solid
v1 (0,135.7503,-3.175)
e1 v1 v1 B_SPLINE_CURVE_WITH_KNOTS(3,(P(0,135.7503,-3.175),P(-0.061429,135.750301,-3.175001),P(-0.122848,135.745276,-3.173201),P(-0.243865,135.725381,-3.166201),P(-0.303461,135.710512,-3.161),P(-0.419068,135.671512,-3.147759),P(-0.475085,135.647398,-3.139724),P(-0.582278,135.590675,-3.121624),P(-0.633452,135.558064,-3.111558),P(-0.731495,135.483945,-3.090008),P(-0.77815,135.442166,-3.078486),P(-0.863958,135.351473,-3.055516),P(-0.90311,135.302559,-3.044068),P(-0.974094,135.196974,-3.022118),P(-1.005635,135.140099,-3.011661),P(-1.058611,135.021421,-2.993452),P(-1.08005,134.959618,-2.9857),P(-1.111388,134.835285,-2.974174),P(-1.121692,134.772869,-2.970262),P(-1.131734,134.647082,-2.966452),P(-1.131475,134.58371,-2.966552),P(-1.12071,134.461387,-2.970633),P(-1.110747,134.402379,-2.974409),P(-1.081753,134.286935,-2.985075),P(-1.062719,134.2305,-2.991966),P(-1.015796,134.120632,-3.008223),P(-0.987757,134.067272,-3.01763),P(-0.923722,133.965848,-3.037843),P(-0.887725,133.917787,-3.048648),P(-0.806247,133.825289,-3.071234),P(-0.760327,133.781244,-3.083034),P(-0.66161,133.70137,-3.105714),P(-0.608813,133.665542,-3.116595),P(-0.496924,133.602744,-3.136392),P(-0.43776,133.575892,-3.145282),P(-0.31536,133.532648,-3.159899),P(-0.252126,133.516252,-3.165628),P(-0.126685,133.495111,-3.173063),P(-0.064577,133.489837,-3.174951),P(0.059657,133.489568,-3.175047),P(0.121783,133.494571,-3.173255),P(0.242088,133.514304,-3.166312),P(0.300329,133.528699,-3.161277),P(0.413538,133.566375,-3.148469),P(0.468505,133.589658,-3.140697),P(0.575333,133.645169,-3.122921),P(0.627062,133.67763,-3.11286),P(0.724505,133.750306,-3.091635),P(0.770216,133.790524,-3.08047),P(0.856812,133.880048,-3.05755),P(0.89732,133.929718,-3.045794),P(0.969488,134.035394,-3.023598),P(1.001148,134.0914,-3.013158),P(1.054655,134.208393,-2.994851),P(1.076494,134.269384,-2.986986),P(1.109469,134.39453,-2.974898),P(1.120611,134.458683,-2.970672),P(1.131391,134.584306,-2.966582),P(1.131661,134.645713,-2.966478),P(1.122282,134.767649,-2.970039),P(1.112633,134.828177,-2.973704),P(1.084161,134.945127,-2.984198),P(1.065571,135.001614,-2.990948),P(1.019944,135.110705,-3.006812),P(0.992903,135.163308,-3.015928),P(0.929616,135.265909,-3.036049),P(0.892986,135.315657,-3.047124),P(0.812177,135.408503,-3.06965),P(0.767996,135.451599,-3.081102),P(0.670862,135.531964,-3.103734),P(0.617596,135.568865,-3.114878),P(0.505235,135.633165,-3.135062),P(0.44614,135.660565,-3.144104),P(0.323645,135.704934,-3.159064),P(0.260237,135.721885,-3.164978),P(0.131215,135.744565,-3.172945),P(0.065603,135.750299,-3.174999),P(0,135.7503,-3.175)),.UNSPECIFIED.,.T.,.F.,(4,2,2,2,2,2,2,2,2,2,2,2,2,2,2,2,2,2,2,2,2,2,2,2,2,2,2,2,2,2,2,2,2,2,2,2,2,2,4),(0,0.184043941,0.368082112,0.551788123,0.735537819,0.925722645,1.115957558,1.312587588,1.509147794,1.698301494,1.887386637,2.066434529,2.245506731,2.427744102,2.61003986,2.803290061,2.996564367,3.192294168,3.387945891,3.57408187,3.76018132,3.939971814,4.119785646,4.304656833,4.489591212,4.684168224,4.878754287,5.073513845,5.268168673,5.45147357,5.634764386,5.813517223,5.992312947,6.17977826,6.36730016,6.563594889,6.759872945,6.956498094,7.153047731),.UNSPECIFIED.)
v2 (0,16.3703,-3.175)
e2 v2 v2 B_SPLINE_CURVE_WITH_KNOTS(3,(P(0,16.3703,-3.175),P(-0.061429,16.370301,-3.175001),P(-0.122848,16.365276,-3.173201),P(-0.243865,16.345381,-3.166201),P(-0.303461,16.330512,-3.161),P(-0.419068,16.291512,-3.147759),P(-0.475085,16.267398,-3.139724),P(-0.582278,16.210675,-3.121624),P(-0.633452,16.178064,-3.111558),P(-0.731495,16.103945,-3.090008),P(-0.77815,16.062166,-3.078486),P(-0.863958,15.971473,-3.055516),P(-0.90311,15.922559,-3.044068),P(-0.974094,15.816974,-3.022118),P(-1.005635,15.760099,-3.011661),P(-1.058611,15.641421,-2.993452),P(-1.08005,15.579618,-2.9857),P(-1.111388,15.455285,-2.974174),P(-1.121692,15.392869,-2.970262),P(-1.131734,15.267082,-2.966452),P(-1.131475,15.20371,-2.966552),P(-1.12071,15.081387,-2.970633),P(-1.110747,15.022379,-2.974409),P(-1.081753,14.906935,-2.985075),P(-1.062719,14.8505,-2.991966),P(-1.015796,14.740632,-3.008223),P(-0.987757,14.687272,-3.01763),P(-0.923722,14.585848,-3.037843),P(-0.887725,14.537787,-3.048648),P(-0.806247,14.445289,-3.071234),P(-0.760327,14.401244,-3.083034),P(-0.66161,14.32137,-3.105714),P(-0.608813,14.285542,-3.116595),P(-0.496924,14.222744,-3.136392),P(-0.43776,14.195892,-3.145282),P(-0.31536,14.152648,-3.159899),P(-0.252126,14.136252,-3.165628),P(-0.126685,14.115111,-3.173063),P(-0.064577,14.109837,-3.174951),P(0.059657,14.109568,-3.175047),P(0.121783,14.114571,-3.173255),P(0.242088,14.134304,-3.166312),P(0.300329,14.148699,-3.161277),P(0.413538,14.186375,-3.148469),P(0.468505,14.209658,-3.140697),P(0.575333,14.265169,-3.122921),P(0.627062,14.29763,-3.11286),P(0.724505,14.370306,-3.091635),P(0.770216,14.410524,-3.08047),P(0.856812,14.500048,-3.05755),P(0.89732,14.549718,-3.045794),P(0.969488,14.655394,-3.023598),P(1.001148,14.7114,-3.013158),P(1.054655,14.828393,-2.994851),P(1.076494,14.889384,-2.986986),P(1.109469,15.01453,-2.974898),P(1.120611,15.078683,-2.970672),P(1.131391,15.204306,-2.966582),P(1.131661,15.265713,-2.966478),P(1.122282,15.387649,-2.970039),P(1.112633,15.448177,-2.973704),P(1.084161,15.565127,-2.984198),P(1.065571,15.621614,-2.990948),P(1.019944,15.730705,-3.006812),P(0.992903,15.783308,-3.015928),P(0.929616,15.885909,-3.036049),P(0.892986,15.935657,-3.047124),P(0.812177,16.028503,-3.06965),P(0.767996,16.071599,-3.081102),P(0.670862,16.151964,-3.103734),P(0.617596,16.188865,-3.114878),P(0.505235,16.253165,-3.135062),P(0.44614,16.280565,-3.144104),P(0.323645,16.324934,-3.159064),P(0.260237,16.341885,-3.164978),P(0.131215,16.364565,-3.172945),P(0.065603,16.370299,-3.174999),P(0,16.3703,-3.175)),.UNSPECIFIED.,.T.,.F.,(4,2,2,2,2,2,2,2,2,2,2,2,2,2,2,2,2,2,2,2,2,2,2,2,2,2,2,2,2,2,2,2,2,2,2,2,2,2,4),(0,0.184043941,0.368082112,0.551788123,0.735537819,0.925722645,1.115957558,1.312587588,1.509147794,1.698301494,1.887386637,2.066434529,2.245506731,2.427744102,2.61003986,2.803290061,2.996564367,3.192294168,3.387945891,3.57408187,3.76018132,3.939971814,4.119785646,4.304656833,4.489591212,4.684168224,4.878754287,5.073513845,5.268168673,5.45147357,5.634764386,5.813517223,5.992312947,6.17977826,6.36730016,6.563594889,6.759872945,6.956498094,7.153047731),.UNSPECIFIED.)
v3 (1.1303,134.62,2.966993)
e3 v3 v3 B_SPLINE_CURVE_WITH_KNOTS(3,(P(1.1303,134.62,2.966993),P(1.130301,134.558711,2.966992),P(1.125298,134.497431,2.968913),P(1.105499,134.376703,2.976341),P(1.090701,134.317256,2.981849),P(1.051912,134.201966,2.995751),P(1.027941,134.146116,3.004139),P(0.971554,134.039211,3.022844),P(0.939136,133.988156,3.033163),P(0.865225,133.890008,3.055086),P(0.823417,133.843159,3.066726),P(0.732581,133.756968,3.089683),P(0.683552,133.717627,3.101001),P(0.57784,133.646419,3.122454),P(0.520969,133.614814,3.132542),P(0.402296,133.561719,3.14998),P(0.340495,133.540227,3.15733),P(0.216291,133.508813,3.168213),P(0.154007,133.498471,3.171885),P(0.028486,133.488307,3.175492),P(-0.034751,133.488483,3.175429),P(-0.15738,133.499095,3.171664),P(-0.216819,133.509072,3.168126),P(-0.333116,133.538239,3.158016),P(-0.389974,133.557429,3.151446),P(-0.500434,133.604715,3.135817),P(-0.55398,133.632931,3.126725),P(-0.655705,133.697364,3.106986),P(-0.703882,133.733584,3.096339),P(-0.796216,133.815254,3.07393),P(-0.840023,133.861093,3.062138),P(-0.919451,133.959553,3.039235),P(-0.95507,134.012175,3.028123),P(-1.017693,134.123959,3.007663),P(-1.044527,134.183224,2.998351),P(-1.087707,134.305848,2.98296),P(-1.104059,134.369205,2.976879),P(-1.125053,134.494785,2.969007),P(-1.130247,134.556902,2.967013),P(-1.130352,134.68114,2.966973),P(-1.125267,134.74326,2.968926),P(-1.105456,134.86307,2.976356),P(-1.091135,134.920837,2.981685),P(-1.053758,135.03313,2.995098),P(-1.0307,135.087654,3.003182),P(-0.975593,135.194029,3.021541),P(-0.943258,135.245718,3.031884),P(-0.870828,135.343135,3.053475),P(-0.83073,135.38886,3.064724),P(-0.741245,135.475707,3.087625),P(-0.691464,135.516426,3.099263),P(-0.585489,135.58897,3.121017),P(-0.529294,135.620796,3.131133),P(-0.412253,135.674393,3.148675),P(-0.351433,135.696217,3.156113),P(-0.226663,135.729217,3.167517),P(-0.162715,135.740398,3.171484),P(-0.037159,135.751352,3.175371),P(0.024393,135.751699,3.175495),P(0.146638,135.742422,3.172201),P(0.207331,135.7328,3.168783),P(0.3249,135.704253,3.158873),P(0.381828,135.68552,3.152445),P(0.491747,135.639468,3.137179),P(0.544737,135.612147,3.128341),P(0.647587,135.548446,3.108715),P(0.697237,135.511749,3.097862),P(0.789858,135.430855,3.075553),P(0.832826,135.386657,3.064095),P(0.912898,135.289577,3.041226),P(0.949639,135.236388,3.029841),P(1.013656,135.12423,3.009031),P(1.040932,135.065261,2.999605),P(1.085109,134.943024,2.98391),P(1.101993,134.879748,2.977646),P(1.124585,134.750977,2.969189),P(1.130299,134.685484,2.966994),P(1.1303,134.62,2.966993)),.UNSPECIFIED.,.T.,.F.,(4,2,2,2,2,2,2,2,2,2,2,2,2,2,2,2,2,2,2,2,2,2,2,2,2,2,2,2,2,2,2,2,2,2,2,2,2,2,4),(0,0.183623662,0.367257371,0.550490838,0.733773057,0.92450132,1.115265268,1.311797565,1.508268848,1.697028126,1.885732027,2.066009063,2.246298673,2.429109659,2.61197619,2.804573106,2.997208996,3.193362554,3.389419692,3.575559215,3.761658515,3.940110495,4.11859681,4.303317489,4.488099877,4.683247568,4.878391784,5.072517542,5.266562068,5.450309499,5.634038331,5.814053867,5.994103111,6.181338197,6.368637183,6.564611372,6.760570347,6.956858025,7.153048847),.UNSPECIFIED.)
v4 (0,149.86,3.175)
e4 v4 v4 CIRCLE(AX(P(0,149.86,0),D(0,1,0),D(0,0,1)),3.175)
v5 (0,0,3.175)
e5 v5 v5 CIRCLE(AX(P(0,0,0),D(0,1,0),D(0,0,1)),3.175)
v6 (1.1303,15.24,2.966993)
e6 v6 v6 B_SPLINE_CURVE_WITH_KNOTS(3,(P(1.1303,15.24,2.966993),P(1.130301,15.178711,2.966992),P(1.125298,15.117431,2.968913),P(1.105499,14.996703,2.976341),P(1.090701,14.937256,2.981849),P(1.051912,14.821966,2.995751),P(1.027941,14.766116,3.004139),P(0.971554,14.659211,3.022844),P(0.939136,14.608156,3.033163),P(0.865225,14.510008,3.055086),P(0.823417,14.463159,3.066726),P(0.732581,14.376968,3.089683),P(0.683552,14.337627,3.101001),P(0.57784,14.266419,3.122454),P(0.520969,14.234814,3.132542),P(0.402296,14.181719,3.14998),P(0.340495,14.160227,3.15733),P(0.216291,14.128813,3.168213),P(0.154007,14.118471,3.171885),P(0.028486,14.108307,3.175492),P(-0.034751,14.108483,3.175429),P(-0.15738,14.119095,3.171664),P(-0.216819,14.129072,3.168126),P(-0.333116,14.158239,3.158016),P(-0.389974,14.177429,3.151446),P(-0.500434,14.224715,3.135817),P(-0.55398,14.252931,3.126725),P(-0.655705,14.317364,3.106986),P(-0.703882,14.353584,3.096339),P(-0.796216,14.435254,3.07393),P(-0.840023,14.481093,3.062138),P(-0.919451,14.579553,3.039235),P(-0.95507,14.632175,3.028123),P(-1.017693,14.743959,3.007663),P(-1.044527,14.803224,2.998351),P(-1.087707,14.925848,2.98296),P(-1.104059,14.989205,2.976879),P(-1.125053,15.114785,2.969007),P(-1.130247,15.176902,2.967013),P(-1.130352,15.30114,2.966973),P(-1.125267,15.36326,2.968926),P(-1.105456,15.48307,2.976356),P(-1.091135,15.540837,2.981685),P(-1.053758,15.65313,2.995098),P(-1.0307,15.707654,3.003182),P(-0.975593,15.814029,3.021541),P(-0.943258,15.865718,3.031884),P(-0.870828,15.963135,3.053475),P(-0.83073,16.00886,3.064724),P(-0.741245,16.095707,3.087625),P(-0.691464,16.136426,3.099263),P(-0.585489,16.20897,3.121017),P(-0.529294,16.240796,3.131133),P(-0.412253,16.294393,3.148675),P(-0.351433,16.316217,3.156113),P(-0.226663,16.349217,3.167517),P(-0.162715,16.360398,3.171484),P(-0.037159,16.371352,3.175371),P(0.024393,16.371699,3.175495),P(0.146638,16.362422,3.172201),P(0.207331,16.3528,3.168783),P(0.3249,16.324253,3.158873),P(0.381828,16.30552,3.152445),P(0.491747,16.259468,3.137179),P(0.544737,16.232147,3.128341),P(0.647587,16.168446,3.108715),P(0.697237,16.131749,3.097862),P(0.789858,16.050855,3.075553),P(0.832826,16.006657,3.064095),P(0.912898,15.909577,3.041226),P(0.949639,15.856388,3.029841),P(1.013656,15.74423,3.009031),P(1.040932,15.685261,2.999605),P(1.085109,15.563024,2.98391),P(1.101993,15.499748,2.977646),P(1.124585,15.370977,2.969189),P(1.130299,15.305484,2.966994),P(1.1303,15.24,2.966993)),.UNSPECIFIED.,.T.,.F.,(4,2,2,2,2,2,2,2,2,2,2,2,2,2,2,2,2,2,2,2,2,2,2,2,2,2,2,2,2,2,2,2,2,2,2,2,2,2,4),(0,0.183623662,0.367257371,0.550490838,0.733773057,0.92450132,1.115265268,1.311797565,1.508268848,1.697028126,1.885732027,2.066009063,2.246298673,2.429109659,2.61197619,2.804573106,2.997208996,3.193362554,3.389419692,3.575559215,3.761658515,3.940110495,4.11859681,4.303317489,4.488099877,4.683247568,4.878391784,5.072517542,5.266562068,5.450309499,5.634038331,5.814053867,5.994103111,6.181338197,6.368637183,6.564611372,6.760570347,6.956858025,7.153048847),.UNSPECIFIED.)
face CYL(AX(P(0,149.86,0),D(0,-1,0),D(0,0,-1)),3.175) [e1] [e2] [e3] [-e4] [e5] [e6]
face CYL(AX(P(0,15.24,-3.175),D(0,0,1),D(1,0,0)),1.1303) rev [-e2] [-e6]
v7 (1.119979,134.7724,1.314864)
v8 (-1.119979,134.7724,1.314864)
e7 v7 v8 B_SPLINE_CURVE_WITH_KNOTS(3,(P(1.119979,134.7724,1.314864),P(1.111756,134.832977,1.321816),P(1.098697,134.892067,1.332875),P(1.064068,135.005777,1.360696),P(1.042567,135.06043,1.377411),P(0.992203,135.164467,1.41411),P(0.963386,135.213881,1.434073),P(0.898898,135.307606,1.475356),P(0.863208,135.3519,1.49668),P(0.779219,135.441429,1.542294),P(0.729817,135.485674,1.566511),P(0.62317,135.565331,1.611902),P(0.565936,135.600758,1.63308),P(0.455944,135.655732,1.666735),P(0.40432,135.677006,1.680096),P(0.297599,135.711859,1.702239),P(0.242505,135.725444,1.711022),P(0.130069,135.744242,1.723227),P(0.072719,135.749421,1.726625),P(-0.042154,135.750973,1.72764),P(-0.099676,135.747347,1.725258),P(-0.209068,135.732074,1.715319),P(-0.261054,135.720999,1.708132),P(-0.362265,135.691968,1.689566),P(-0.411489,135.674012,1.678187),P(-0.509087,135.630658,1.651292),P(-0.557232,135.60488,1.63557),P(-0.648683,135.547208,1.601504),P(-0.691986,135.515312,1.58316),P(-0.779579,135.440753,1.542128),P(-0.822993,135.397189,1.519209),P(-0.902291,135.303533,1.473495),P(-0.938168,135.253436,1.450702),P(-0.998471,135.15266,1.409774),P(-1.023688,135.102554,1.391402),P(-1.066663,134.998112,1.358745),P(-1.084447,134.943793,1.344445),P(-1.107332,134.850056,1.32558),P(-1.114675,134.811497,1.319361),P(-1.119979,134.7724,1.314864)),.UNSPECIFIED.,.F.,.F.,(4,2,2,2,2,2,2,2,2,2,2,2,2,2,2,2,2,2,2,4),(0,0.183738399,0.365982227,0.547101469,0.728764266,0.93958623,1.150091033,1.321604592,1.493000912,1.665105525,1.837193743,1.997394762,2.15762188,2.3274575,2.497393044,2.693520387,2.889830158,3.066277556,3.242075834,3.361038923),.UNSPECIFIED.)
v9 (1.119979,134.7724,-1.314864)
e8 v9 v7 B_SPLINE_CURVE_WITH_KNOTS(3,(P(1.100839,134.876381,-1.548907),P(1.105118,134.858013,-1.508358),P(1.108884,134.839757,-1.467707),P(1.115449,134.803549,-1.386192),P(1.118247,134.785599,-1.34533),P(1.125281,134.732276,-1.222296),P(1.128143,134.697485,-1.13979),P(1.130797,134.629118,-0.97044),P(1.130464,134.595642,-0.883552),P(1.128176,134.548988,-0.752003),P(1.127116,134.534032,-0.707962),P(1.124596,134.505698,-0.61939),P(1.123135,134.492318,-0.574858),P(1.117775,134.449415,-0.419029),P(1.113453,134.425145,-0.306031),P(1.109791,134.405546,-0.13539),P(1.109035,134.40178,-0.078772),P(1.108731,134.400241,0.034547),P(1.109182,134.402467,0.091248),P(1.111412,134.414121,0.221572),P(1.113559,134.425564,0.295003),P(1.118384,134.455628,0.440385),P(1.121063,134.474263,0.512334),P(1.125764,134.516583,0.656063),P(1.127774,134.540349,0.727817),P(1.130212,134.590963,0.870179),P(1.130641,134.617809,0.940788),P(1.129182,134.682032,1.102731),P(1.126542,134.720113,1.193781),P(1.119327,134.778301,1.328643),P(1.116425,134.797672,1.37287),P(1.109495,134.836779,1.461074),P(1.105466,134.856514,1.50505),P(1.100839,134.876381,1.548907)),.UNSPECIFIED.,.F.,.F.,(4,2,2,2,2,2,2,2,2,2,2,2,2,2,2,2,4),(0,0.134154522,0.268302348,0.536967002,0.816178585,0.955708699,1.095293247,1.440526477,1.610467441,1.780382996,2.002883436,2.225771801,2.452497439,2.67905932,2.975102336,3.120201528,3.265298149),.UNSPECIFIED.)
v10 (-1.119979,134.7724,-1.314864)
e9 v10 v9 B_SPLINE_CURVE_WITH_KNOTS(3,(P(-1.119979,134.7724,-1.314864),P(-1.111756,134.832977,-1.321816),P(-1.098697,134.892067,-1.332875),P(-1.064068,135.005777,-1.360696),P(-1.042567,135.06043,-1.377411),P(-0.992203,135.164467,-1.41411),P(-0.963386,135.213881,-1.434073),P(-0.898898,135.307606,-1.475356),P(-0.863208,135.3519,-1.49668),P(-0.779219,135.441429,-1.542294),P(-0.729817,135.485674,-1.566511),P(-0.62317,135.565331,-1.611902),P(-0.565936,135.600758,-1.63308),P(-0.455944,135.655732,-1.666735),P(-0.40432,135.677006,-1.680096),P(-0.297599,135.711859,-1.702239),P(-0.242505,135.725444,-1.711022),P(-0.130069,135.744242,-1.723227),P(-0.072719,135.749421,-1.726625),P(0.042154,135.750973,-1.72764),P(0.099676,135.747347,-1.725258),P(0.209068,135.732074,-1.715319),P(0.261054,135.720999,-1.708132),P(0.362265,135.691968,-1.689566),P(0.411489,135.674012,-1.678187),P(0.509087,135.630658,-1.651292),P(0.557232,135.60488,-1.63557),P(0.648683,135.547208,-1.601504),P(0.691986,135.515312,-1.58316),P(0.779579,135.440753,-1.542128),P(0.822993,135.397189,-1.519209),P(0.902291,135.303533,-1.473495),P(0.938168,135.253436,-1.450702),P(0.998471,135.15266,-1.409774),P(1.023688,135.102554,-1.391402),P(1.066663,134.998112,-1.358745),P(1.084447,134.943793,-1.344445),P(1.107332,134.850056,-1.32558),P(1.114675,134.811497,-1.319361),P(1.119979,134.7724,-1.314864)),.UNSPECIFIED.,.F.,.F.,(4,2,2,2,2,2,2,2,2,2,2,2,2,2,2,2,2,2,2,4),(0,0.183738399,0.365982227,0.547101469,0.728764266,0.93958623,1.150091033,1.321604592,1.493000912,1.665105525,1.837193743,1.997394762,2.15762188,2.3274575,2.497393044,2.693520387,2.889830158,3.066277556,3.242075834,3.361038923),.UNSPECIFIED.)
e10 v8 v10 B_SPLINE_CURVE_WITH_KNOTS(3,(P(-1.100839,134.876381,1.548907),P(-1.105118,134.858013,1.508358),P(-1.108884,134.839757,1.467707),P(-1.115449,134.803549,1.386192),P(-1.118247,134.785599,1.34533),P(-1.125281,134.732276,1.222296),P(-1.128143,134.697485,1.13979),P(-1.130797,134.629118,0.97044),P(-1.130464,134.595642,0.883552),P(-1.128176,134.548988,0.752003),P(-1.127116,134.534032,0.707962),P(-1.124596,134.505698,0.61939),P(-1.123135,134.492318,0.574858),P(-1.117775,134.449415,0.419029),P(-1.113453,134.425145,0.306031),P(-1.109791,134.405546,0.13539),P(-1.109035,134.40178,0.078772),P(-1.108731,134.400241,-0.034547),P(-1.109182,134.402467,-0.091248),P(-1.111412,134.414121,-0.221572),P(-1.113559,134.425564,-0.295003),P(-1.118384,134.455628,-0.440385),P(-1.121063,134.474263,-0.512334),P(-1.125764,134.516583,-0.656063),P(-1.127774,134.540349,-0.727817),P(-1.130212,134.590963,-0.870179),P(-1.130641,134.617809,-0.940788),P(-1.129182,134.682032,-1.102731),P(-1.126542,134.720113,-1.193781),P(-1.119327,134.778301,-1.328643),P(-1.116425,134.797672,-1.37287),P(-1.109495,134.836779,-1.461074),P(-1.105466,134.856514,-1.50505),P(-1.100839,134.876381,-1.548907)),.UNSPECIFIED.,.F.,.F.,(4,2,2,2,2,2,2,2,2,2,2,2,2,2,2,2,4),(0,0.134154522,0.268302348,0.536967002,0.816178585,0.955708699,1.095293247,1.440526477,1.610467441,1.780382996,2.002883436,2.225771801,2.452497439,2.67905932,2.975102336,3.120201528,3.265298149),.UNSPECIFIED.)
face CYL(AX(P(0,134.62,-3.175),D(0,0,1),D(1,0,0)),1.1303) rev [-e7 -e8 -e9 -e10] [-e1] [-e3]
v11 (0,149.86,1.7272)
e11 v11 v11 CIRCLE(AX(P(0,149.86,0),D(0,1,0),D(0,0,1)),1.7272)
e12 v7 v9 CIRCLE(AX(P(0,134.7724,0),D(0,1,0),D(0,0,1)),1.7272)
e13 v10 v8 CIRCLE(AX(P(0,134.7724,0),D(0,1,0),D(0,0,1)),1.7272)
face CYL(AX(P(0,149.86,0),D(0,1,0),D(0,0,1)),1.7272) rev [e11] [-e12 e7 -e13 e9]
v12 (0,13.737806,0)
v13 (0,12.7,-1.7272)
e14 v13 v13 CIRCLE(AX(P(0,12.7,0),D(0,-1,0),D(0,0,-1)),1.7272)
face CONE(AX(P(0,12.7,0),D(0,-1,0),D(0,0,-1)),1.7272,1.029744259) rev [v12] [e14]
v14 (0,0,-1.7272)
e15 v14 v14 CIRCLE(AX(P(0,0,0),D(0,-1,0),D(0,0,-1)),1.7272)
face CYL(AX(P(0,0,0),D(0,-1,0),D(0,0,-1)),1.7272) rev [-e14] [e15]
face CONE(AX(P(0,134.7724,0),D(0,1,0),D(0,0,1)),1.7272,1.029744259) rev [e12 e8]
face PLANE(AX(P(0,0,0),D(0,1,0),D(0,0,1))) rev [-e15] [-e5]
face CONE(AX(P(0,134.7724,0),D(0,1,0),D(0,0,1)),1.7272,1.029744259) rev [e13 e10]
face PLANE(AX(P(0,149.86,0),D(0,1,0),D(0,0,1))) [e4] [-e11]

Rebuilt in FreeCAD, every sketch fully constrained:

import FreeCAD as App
import Part
import Sketcher
from FreeCAD import Vector
Q = App.Units.Quantity

doc = App.newDocument("Part")
body = doc.addObject("PartDesign::Body", "Body")

# Sketch on XZ plane
sketch1 = body.newObject("Sketcher::SketchObject", "Sketch")
sketch1.AttachmentSupport = (doc.getObject("XZ_Plane"), [""])
sketch1.MapMode = "FlatFace"
sketch1.addGeometry(Part.Circle(Vector(0, 0, 0), Vector(0, 0, 1), 3.175), False)
sketch1.addConstraint(Sketcher.Constraint("Coincident", 0, 3, -1, 1))
sketch1.addConstraint(Sketcher.Constraint("Diameter", 0, Q("0.25 in")))
pad1 = body.newObject("PartDesign::Pad", "Pad")
pad1.Profile = sketch1
pad1.Length = Q("5.9 in")
pad1.Reversed = True

# Sketch on XZ plane
sketch2 = body.newObject("Sketcher::SketchObject", "Sketch001")
sketch2.AttachmentSupport = (doc.getObject("XZ_Plane"), [""])
sketch2.MapMode = "FlatFace"
sketch2.addGeometry(Part.Circle(Vector(0, 0, 0), Vector(0, 0, 1), 1.7272), False)
sketch2.addConstraint(Sketcher.Constraint("Coincident", 0, 3, -1, 1))
sketch2.addConstraint(Sketcher.Constraint("Diameter", 0, Q("0.136 in")))
doc.recompute()
hole = body.newObject("PartDesign::Hole", "Hole")
hole.Profile = sketch2
hole.ThreadType = "None"
hole.Diameter = Q("0.136 in")
hole.DepthType = "Dimension"
hole.Depth = Q("0.5 in")
hole.DrillPoint = "Angled"
hole.DrillPointAngle = 118

# Sketch on XZ plane
sketch3 = body.newObject("Sketcher::SketchObject", "Sketch002")
sketch3.AttachmentSupport = (doc.getObject("XZ_Plane"), [""])
sketch3.MapMode = "FlatFace"
sketch3.AttachmentOffset = App.Placement(Vector(0, 0, -5.9 * 25.4), App.Rotation())
sketch3.addGeometry(Part.Circle(Vector(0, 0, 0), Vector(0, 0, 1), 1.7272), False)
sketch3.addConstraint(Sketcher.Constraint("Coincident", 0, 3, -1, 1))
sketch3.addConstraint(Sketcher.Constraint("Diameter", 0, Q("0.136 in")))
doc.recompute()
hole2 = body.newObject("PartDesign::Hole", "Hole001")
hole2.Profile = sketch3
hole2.ThreadType = "None"
hole2.Diameter = Q("0.136 in")
hole2.DepthType = "Dimension"
hole2.Depth = Q("0.594 in")
hole2.DrillPoint = "Angled"
hole2.DrillPointAngle = 118
hole2.Reversed = True

# Sketch on XY plane
sketch4 = body.newObject("Sketcher::SketchObject", "Sketch003")
sketch4.AttachmentSupport = (doc.getObject("XY_Plane"), [""])
sketch4.MapMode = "FlatFace"
sketch4.addGeometry(Part.Circle(Vector(0, 134.62, 0), Vector(0, 0, 1), 1.1303), False)
sketch4.addGeometry(Part.Circle(Vector(0, 15.24, 0), Vector(0, 0, 1), 1.1303), False)
sketch4.addConstraint(Sketcher.Constraint("Equal", 0, 1))
sketch4.addConstraint(Sketcher.Constraint("PointOnObject", 0, 3, -2))
sketch4.addConstraint(Sketcher.Constraint("PointOnObject", 1, 3, -2))
sketch4.addConstraint(Sketcher.Constraint("Diameter", 0, Q("0.089 in")))
sketch4.addConstraint(Sketcher.Constraint("DistanceY", -1, 1, 0, 3, Q("5.3 in")))
sketch4.addConstraint(Sketcher.Constraint("DistanceY", -1, 1, 1, 3, Q("0.6 in")))
pocket1 = body.newObject("PartDesign::Pocket", "Pocket")
pocket1.Profile = sketch4
pocket1.Type = "ThroughAll"
pocket1.Midplane = True

doc.recompute()
